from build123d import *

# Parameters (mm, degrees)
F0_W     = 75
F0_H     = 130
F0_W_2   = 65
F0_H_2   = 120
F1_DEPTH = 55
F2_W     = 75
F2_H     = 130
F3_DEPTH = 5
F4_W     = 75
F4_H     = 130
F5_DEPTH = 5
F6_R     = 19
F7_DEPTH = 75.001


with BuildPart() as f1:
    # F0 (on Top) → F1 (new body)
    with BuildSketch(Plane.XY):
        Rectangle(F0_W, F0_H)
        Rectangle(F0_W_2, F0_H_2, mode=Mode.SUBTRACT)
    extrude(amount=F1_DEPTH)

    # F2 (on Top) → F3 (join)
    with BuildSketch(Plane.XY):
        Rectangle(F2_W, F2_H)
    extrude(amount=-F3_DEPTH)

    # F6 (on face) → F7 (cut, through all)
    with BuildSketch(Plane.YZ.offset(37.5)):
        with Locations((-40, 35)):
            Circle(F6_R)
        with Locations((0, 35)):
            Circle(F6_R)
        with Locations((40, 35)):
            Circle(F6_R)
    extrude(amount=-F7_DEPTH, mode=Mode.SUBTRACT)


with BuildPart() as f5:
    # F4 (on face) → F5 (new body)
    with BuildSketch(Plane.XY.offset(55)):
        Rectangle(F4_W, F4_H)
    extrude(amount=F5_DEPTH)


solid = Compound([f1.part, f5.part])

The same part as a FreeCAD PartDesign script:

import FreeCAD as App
import Part
import Sketcher


def add_polygon(sketch, points):
    """Adds a closed chain of lines whose ends are joined by coincident constraints."""
    first, n = sketch.GeometryCount, len(points)
    for a, b in zip(points, points[1:] + points[:1]):
        sketch.addGeometry(Part.LineSegment(App.Vector(*a, 0), App.Vector(*b, 0)), False)
    for i in range(n):
        sketch.addConstraint(Sketcher.Constraint("Coincident", first + i, 2, first + (i + 1) % n, 1))

doc = App.newDocument("Part")
params = doc.addObject("Spreadsheet::Sheet", "Params")
for row, (alias, value) in enumerate([
    ("sketch1_width", "75 mm"),
    ("sketch1_width2", "65 mm"),
    ("sketch1_height", "130 mm"),
    ("sketch1_height2", "120 mm"),
    ("pad1_length", "55 mm"),
    ("sketch2_width", "75 mm"),
    ("sketch2_height", "130 mm"),
    ("pad2_length", "5 mm"),
    ("sketch3_diameter", "38 mm"),
    ("sketch4_width", "75 mm"),
    ("sketch4_height", "130 mm"),
    ("pad3_length", "5 mm"),
], start=1):
    params.set(f"A{row}", alias)
    params.set(f"B{row}", "=" + value)
    params.setAlias(f"B{row}", alias)

body = doc.addObject("PartDesign::Body", "Body")

# Sketch on XY plane
sketch1 = doc.addObject("Sketcher::SketchObject", "Sketch")
body.addObject(sketch1)
sketch1.AttachmentSupport = (doc.XY_Plane, [""])
sketch1.MapMode = "FlatFace"
add_polygon(sketch1, [(-38, 65), (-38, -65), (38, -65), (38, 65)])  # lines 0-3
add_polygon(sketch1, [(32, -60), (-32, -60), (-32, 60), (32, 60)])  # lines 4-7
sketch1.addConstraint(Sketcher.Constraint("Vertical", 0))
sketch1.addConstraint(Sketcher.Constraint("Horizontal", 1))
sketch1.addConstraint(Sketcher.Constraint("Vertical", 2))
sketch1.addConstraint(Sketcher.Constraint("Horizontal", 3))
sketch1.addConstraint(Sketcher.Constraint("Horizontal", 4))
sketch1.addConstraint(Sketcher.Constraint("Vertical", 5))
sketch1.addConstraint(Sketcher.Constraint("Horizontal", 6))
sketch1.addConstraint(Sketcher.Constraint("Vertical", 7))
sketch1.addConstraint(Sketcher.Constraint("Symmetric", 0, 2, 2, 2, -1, 1))
sketch1.addConstraint(Sketcher.Constraint("Symmetric", 4, 2, 6, 2, -1, 1))
sketch1.addConstraint(Sketcher.Constraint("DistanceX", 1, 1, 1, 2, 75.0))
sketch1.addConstraint(Sketcher.Constraint("DistanceX", 4, 2, 4, 1, 65.0))
sketch1.addConstraint(Sketcher.Constraint("DistanceY", 0, 2, 0, 1, 130.0))
sketch1.addConstraint(Sketcher.Constraint("DistanceY", 5, 1, 5, 2, 120.0))
sketch1.setExpression("Constraints[18]", "Params.sketch1_width")
sketch1.setExpression("Constraints[19]", "Params.sketch1_width2")
sketch1.setExpression("Constraints[20]", "Params.sketch1_height")
sketch1.setExpression("Constraints[21]", "Params.sketch1_height2")
pad1 = doc.addObject("PartDesign::Pad", "Pad")
body.addObject(pad1)
pad1.Profile = sketch1
pad1.setExpression("Length", "Params.pad1_length")

# Sketch on XY plane
sketch2 = doc.addObject("Sketcher::SketchObject", "Sketch001")
body.addObject(sketch2)
sketch2.AttachmentSupport = (doc.XY_Plane, [""])
sketch2.MapMode = "FlatFace"
add_polygon(sketch2, [(-38, 65), (-38, -65), (38, -65), (38, 65)])  # lines 0-3
sketch2.addConstraint(Sketcher.Constraint("Vertical", 0))
sketch2.addConstraint(Sketcher.Constraint("Horizontal", 1))
sketch2.addConstraint(Sketcher.Constraint("Vertical", 2))
sketch2.addConstraint(Sketcher.Constraint("Horizontal", 3))
sketch2.addConstraint(Sketcher.Constraint("Symmetric", 0, 2, 2, 2, -1, 1))
sketch2.addConstraint(Sketcher.Constraint("DistanceX", 1, 1, 1, 2, 75.0))
sketch2.addConstraint(Sketcher.Constraint("DistanceY", 0, 2, 0, 1, 130.0))
sketch2.setExpression("Constraints[9]", "Params.sketch2_width")
sketch2.setExpression("Constraints[10]", "Params.sketch2_height")
pad2 = doc.addObject("PartDesign::Pad", "Pad001")
body.addObject(pad2)
pad2.Profile = sketch2
pad2.setExpression("Length", "Params.pad2_length")
pad2.Reversed = True

# Sketch on YZ plane
sketch3 = doc.addObject("Sketcher::SketchObject", "Sketch002")
body.addObject(sketch3)
sketch3.AttachmentSupport = (doc.YZ_Plane, [""])
sketch3.MapMode = "FlatFace"
sketch3.AttachmentOffset = App.Placement(App.Vector(0, 0, 37.5), App.Rotation())
sketch3.addGeometry(Part.Circle(App.Vector(-40, 35, 0), App.Vector(0, 0, 1), 19), False)
sketch3.addGeometry(Part.Circle(App.Vector(0, 35, 0), App.Vector(0, 0, 1), 19), False)
sketch3.addGeometry(Part.Circle(App.Vector(40, 35, 0), App.Vector(0, 0, 1), 19), False)
sketch3.addConstraint(Sketcher.Constraint("Equal", 0, 1))
sketch3.addConstraint(Sketcher.Constraint("Equal", 1, 2))
sketch3.addConstraint(Sketcher.Constraint("Symmetric", 0, 3, 2, 3, -2))
sketch3.addConstraint(Sketcher.Constraint("PointOnObject", 1, 3, -2))
sketch3.addConstraint(Sketcher.Constraint("Horizontal", 0, 3, 1, 3))
sketch3.addConstraint(Sketcher.Constraint("Diameter", 0, 38.0))
sketch3.addConstraint(Sketcher.Constraint("DistanceX", 0, 3, -1, 1, 40.0))
sketch3.addConstraint(Sketcher.Constraint("DistanceY", -1, 1, 0, 3, 35.0))
sketch3.setExpression("Constraints[5]", "Params.sketch3_diameter")
pocket1 = doc.addObject("PartDesign::Pocket", "Pocket")
body.addObject(pocket1)
pocket1.Profile = sketch3
pocket1.Type = "ThroughAll"
body2 = doc.addObject("PartDesign::Body", "Body001")

# Sketch on XY plane
sketch4 = doc.addObject("Sketcher::SketchObject", "Sketch003")
body2.addObject(sketch4)
sketch4.AttachmentSupport = (doc.getObject("XY_Plane001"), [""])
sketch4.MapMode = "FlatFace"
sketch4.AttachmentOffset = App.Placement(App.Vector(0, 0, 55), App.Rotation())
add_polygon(sketch4, [(-38, 65), (-38, -65), (38, -65), (38, 65)])  # lines 0-3
sketch4.addConstraint(Sketcher.Constraint("Vertical", 0))
sketch4.addConstraint(Sketcher.Constraint("Horizontal", 1))
sketch4.addConstraint(Sketcher.Constraint("Vertical", 2))
sketch4.addConstraint(Sketcher.Constraint("Horizontal", 3))
sketch4.addConstraint(Sketcher.Constraint("Symmetric", 0, 2, 2, 2, -1, 1))
sketch4.addConstraint(Sketcher.Constraint("DistanceX", 1, 1, 1, 2, 75.0))
sketch4.addConstraint(Sketcher.Constraint("DistanceY", 0, 2, 0, 1, 130.0))
sketch4.setExpression("Constraints[9]", "Params.sketch4_width")
sketch4.setExpression("Constraints[10]", "Params.sketch4_height")
pad3 = doc.addObject("PartDesign::Pad", "Pad002")
body2.addObject(pad3)
pad3.Profile = sketch4
pad3.setExpression("Length", "Params.pad3_length")

doc.recompute()
